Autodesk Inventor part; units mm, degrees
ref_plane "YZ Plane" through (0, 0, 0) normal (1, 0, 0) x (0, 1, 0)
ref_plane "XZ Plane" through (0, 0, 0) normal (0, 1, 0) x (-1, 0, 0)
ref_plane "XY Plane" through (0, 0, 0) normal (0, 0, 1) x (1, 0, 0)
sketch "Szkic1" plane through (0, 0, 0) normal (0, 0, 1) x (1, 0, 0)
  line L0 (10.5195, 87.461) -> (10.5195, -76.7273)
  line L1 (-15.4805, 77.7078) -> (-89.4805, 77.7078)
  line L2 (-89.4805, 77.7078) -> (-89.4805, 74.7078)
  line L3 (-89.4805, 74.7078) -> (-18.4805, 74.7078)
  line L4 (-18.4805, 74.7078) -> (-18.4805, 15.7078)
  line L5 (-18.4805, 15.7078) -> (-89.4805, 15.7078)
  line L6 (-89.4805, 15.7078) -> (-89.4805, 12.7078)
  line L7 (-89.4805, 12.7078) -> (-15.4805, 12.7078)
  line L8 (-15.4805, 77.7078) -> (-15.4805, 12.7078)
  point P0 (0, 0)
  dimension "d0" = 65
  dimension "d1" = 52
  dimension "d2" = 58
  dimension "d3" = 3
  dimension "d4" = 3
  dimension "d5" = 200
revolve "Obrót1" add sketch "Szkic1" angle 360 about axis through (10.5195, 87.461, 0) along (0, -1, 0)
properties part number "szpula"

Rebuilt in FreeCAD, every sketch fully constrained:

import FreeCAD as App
import Part
import Sketcher
from FreeCAD import Vector
Q = App.Units.Quantity

doc = App.newDocument("Part")
params = doc.addObject("Spreadsheet::Sheet", "Params")
for row, (alias, value) in enumerate([
    ("sketch1_height", "65 mm"),
    ("sketch1_height2", "3 mm"),
    ("sketch1_width", "74 mm"),
    ("revolution_angle", "360 deg"),
], start=1):
    params.set(f"A{row}", alias)
    params.set(f"B{row}", "=" + value)
    params.setAlias(f"B{row}", alias)

body = doc.addObject("PartDesign::Body", "Body")

# Sketch on XY plane
sketch1 = body.newObject("Sketcher::SketchObject", "Sketch")
sketch1.AttachmentSupport = (doc.getObject("XY_Plane"), [""])
sketch1.MapMode = "FlatFace"
sketch1.addGeometry([
    Part.LineSegment(Vector(-15.5, 12.7, 0), Vector(-15.5, 77.7, 0)),  # 0
    Part.LineSegment(Vector(-15.5, 77.7, 0), Vector(-89.5, 77.7, 0)),  # 1
    Part.LineSegment(Vector(-89.5, 77.7, 0), Vector(-89.5, 74.7, 0)),  # 2
    Part.LineSegment(Vector(-89.5, 74.7, 0), Vector(-18.5, 74.7, 0)),  # 3
    Part.LineSegment(Vector(-18.5, 74.7, 0), Vector(-18.5, 15.7, 0)),  # 4
    Part.LineSegment(Vector(-18.5, 15.7, 0), Vector(-89.5, 15.7, 0)),  # 5
    Part.LineSegment(Vector(-89.5, 15.7, 0), Vector(-89.5, 12.7, 0)),  # 6
    Part.LineSegment(Vector(-89.5, 12.7, 0), Vector(-15.5, 12.7, 0)),  # 7
], False)
sketch1.addGeometry(Part.LineSegment(Vector(10.5, 77.7, 0), Vector(10.5, 12.7, 0)), True)  # axis
sketch1.addConstraint([
    Sketcher.Constraint("Coincident", 0, 2, 1, 1),
    Sketcher.Constraint("Coincident", 1, 2, 2, 1),
    Sketcher.Constraint("Coincident", 2, 2, 3, 1),
    Sketcher.Constraint("Coincident", 3, 2, 4, 1),
    Sketcher.Constraint("Coincident", 4, 2, 5, 1),
    Sketcher.Constraint("Coincident", 5, 2, 6, 1),
    Sketcher.Constraint("Coincident", 6, 2, 7, 1),
    Sketcher.Constraint("Coincident", 7, 2, 0, 1),
    Sketcher.Constraint("Vertical", 0),
    Sketcher.Constraint("Horizontal", 1),
    Sketcher.Constraint("Vertical", 2),
    Sketcher.Constraint("Horizontal", 3),
    Sketcher.Constraint("Vertical", 4),
    Sketcher.Constraint("Horizontal", 5),
    Sketcher.Constraint("Vertical", 6),
    Sketcher.Constraint("Horizontal", 7),
    Sketcher.Constraint("Vertical", 8),
    Sketcher.Constraint("Horizontal", 1, 2, 8, 1),
    Sketcher.Constraint("Horizontal", 7, 2, 8, 2),
    Sketcher.Constraint("Vertical", 2, 2, 5, 2),
    Sketcher.Constraint("Equal", 2, 6),
    Sketcher.Constraint("DistanceY", 0, 1, 0, 2, Q("65 mm")),
    Sketcher.Constraint("DistanceY", 2, 2, 2, 1, Q("3 mm")),
    Sketcher.Constraint("DistanceX", 3, 2, 0, 2, Q("3 mm")),
    Sketcher.Constraint("DistanceX", 1, 2, 1, 1, Q("74 mm")),
    Sketcher.Constraint("DistanceX", 0, 2, 8, 1, Q("26 mm")),
    Sketcher.Constraint("DistanceX", 0, 2, -1, 1, Q("15.4805 mm")),
    Sketcher.Constraint("DistanceY", -1, 1, 0, 2, Q("77.7078 mm")),
])
sketch1.setExpression("Constraints[21]", "Params.sketch1_height")
sketch1.setExpression("Constraints[22]", "Params.sketch1_height2")
sketch1.setExpression("Constraints[24]", "Params.sketch1_width")
revolution = body.newObject("PartDesign::Revolution", "Revolution")
revolution.Profile = sketch1
revolution.ReferenceAxis = (sketch1, ["Axis0"])
revolution.setExpression("Angle", "Params.revolution_angle")

doc.recompute()
